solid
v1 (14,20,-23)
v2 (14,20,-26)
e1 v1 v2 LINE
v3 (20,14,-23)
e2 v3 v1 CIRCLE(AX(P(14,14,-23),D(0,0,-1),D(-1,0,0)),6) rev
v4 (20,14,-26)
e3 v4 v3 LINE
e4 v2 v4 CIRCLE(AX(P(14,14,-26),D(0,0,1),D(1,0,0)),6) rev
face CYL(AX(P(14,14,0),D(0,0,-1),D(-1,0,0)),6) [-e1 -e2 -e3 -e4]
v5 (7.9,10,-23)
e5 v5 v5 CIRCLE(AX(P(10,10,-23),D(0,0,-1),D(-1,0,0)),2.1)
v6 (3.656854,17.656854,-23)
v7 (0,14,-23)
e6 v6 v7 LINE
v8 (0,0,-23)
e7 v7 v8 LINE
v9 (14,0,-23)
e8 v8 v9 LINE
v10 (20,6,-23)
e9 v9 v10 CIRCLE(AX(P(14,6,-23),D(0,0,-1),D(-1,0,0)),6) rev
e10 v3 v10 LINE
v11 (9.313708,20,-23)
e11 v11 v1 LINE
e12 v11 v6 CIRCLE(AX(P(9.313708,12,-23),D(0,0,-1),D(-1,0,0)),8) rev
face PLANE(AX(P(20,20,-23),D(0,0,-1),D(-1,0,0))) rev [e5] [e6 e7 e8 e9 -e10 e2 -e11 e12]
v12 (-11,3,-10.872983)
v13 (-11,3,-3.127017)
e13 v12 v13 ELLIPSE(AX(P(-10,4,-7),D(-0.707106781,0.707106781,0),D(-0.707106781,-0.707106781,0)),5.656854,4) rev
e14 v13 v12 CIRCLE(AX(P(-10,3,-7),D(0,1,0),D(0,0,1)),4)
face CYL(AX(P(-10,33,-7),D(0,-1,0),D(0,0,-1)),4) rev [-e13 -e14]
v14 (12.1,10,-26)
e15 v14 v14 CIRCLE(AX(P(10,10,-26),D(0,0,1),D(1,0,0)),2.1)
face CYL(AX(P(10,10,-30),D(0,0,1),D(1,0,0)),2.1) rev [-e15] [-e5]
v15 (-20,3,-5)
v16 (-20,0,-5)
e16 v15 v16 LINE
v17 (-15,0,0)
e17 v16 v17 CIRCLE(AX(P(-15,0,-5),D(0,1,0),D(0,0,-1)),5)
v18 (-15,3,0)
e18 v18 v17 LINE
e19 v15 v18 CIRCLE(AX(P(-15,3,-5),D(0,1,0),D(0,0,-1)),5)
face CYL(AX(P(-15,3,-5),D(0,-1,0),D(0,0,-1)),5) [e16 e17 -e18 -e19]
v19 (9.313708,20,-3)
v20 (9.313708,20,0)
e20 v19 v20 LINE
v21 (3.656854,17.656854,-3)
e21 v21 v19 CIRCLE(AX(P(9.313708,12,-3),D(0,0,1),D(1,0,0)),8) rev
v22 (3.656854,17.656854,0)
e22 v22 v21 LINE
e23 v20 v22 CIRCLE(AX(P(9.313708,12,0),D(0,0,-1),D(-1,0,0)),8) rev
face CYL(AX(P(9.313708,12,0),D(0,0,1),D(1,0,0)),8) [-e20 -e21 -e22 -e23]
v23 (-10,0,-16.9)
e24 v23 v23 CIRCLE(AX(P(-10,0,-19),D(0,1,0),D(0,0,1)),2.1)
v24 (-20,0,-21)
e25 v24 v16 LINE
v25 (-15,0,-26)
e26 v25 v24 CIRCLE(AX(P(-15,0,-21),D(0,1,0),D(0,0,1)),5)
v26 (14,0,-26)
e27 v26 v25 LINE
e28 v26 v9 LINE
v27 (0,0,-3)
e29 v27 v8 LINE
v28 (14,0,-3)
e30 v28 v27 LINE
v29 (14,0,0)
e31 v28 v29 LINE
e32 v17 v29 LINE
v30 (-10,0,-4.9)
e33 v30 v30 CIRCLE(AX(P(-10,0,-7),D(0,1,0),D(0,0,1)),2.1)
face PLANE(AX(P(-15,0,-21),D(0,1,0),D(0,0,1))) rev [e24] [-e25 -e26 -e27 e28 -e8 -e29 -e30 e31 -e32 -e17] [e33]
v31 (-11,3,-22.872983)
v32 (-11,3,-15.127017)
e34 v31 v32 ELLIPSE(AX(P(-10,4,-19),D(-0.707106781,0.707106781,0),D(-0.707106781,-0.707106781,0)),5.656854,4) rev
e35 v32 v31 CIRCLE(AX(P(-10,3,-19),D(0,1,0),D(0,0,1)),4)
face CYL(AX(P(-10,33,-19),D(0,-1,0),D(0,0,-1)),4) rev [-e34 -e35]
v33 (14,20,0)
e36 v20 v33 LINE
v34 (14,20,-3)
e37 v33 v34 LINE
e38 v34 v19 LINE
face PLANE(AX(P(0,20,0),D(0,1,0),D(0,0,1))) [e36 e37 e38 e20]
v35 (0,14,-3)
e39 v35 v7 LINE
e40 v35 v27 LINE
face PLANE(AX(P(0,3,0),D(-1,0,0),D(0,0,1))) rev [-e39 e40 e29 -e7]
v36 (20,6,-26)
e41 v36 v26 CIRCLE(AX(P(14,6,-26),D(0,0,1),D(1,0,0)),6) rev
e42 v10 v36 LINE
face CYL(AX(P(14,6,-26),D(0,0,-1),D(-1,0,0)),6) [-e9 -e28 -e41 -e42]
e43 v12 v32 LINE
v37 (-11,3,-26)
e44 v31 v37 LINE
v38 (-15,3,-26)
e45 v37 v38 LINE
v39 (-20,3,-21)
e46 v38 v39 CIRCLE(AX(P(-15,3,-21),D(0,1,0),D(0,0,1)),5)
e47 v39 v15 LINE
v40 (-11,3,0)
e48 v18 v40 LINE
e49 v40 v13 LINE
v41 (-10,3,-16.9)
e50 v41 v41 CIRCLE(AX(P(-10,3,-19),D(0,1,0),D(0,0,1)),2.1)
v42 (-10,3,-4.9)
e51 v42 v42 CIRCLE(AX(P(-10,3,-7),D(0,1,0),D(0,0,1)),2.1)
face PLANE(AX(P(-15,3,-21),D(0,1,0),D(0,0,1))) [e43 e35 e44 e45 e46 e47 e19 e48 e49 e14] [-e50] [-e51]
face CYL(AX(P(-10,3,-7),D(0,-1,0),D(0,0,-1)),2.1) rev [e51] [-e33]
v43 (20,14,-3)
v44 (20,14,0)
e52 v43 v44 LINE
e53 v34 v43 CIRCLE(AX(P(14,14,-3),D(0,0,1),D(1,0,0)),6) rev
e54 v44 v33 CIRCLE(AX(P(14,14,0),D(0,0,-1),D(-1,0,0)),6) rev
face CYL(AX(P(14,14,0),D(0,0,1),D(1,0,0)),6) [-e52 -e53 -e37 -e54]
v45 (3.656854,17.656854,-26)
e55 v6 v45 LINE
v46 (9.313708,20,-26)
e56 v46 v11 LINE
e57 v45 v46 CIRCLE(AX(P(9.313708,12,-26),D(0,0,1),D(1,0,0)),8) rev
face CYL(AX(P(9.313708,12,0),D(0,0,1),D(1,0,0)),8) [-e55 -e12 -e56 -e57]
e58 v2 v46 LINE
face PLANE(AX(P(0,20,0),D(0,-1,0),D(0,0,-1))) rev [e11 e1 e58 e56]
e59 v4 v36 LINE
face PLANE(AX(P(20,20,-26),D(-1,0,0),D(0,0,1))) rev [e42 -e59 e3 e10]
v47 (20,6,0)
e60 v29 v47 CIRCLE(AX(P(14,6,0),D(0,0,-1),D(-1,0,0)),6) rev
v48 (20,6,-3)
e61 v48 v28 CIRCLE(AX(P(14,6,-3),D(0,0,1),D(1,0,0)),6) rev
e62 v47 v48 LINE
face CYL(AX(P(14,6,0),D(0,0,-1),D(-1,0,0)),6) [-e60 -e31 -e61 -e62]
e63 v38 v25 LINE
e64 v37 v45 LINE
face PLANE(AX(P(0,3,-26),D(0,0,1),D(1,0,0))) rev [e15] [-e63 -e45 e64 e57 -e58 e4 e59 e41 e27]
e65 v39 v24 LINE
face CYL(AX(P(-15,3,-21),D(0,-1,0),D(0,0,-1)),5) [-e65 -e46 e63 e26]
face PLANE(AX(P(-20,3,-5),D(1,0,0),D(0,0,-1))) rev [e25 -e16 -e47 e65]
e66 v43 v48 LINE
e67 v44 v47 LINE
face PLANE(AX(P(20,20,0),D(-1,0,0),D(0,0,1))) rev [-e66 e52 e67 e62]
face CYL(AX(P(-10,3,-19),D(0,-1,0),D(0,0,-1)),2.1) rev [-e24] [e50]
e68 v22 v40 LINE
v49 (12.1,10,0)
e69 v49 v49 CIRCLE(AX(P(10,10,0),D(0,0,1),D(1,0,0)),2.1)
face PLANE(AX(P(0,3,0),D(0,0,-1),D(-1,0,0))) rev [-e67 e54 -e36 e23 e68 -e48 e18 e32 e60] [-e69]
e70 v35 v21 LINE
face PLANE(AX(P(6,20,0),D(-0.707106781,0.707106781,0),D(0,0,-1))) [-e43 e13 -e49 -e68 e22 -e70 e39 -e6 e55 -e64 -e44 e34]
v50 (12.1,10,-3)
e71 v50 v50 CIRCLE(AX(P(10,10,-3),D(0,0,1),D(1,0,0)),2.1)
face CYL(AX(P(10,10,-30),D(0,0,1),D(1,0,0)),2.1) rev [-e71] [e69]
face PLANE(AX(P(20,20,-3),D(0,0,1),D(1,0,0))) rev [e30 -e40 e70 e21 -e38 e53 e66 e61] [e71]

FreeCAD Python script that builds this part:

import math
import FreeCAD as App
import Part
import Sketcher
Q = App.Units.Quantity


def edges_at(feature, points):
    """Names of the edges that pass closest to the given points."""
    edges = feature.Shape.Edges
    near = lambda p: min(range(len(edges)), key=lambda i: edges[i].distToShape(Part.Vertex(*p))[0])
    return sorted({f"Edge{near(p) + 1}" for p in points})

doc = App.newDocument("Part")
body = doc.addObject("PartDesign::Body", "Body")

sketch1 = body.newObject("Sketcher::SketchObject", "Sketch")
sketch1.AttachmentSupport = (doc.getObject("XZ_Plane"), [""])
sketch1.MapMode = "FlatFace"
sketch1.addGeometry(Part.LineSegment(App.Vector(-15, 0, 0), App.Vector(0, 0, 0)), False)
sketch1.addGeometry(Part.LineSegment(App.Vector(0, 0, 0), App.Vector(0, -26, 0)), False)
sketch1.addGeometry(Part.LineSegment(App.Vector(0, -26, 0), App.Vector(-15, -26, 0)), False)
sketch1.addGeometry(Part.ArcOfCircle(Part.Circle(App.Vector(-15, -21, 0), App.Vector(0, 0, 1), 5), math.radians(180), math.radians(270)), False)
sketch1.addGeometry(Part.LineSegment(App.Vector(-20, -21, 0), App.Vector(-20, -5, 0)), False)
sketch1.addGeometry(Part.ArcOfCircle(Part.Circle(App.Vector(-15, -5, 0), App.Vector(0, 0, 1), 5), math.radians(90), math.radians(180)), False)
sketch1.addGeometry(Part.Circle(App.Vector(-10, -7, 0), App.Vector(0, 0, 1), 2.1), False)
sketch1.addGeometry(Part.Circle(App.Vector(-10, -19, 0), App.Vector(0, 0, 1), 2.1), False)
sketch1.addConstraint(Sketcher.Constraint("Coincident", 0, 2, 1, 1))
sketch1.addConstraint(Sketcher.Constraint("Coincident", 1, 2, 2, 1))
sketch1.addConstraint(Sketcher.Constraint("Tangent", 2, 2, 3, 2))
sketch1.addConstraint(Sketcher.Constraint("Tangent", 3, 1, 4, 1))
sketch1.addConstraint(Sketcher.Constraint("Tangent", 4, 2, 5, 2))
sketch1.addConstraint(Sketcher.Constraint("Tangent", 5, 1, 0, 1))
sketch1.addConstraint(Sketcher.Constraint("Horizontal", 0))
sketch1.addConstraint(Sketcher.Constraint("Vertical", 1))
sketch1.addConstraint(Sketcher.Constraint("Horizontal", 2))
sketch1.addConstraint(Sketcher.Constraint("Vertical", 4))
sketch1.addConstraint(Sketcher.Constraint("Coincident", 0, 2, -1, 1))
sketch1.addConstraint(Sketcher.Constraint("Equal", 3, 5))
sketch1.addConstraint(Sketcher.Constraint("Equal", 6, 7))
sketch1.addConstraint(Sketcher.Constraint("Vertical", 6, 3, 7, 3))
sketch1.addConstraint(Sketcher.Constraint("Radius", 3, Q("5 mm")))
sketch1.addConstraint(Sketcher.Constraint("Diameter", 6, Q("4.2 mm")))
sketch1.addConstraint(Sketcher.Constraint("DistanceX", 0, 1, 0, 2, Q("15 mm")))
sketch1.addConstraint(Sketcher.Constraint("DistanceY", 1, 2, 1, 1, Q("26 mm")))
sketch1.addConstraint(Sketcher.Constraint("DistanceX", 6, 3, -1, 1, Q("10 mm")))
sketch1.addConstraint(Sketcher.Constraint("DistanceY", 6, 3, -1, 1, Q("7 mm")))
sketch1.addConstraint(Sketcher.Constraint("DistanceY", 7, 3, -1, 1, Q("19 mm")))
pad1 = body.newObject("PartDesign::Pad", "Pad")
pad1.Profile = sketch1
pad1.Length = 3
pad1.Reversed = True

sketch2 = body.newObject("Sketcher::SketchObject", "Sketch001")
sketch2.AttachmentSupport = (doc.getObject("XZ_Plane"), [""])
sketch2.MapMode = "FlatFace"
sketch2.addGeometry(Part.LineSegment(App.Vector(0, -26, 0), App.Vector(0, -23, 0)), False)
sketch2.addGeometry(Part.LineSegment(App.Vector(0, -23, 0), App.Vector(20, -23, 0)), False)
sketch2.addGeometry(Part.LineSegment(App.Vector(20, -23, 0), App.Vector(20, -26, 0)), False)
sketch2.addGeometry(Part.LineSegment(App.Vector(20, -26, 0), App.Vector(0, -26, 0)), False)
sketch2.addGeometry(Part.LineSegment(App.Vector(0, -3, 0), App.Vector(0, 0, 0)), False)
sketch2.addGeometry(Part.LineSegment(App.Vector(0, 0, 0), App.Vector(20, 0, 0)), False)
sketch2.addGeometry(Part.LineSegment(App.Vector(20, 0, 0), App.Vector(20, -3, 0)), False)
sketch2.addGeometry(Part.LineSegment(App.Vector(20, -3, 0), App.Vector(0, -3, 0)), False)
sketch2.addConstraint(Sketcher.Constraint("Coincident", 0, 2, 1, 1))
sketch2.addConstraint(Sketcher.Constraint("Coincident", 1, 2, 2, 1))
sketch2.addConstraint(Sketcher.Constraint("Coincident", 2, 2, 3, 1))
sketch2.addConstraint(Sketcher.Constraint("Coincident", 3, 2, 0, 1))
sketch2.addConstraint(Sketcher.Constraint("Coincident", 4, 2, 5, 1))
sketch2.addConstraint(Sketcher.Constraint("Coincident", 5, 2, 6, 1))
sketch2.addConstraint(Sketcher.Constraint("Coincident", 6, 2, 7, 1))
sketch2.addConstraint(Sketcher.Constraint("Coincident", 7, 2, 4, 1))
sketch2.addConstraint(Sketcher.Constraint("Vertical", 0))
sketch2.addConstraint(Sketcher.Constraint("Horizontal", 1))
sketch2.addConstraint(Sketcher.Constraint("Vertical", 2))
sketch2.addConstraint(Sketcher.Constraint("Horizontal", 3))
sketch2.addConstraint(Sketcher.Constraint("Vertical", 4))
sketch2.addConstraint(Sketcher.Constraint("Horizontal", 5))
sketch2.addConstraint(Sketcher.Constraint("Vertical", 6))
sketch2.addConstraint(Sketcher.Constraint("Horizontal", 7))
sketch2.addConstraint(Sketcher.Constraint("Coincident", 4, 2, -1, 1))
sketch2.addConstraint(Sketcher.Constraint("PointOnObject", 0, 2, -2))
sketch2.addConstraint(Sketcher.Constraint("Vertical", 2, 2, 5, 2))
sketch2.addConstraint(Sketcher.Constraint("Equal", 2, 4))
sketch2.addConstraint(Sketcher.Constraint("DistanceX", 1, 1, 1, 2, Q("20 mm")))
sketch2.addConstraint(Sketcher.Constraint("DistanceY", 0, 1, 0, 2, Q("3 mm")))
sketch2.addConstraint(Sketcher.Constraint("DistanceY", 0, 2, -1, 1, Q("23 mm")))
pad2 = body.newObject("PartDesign::Pad", "Pad001")
pad2.Profile = sketch2
pad2.Length = 20
pad2.Reversed = True
doc.recompute()

fillet = body.newObject("PartDesign::Fillet", "Fillet")
fillet.Base = (pad2, edges_at(pad2, [
    (20, 0, -24.5),
    (20, 20, -24.5),
    (20, 0, -1.5),
    (20, 20, -1.5),
]))
fillet.Radius = 6
doc.recompute()

chamfer = body.newObject("PartDesign::Chamfer", "Chamfer")
chamfer.Base = (fillet, edges_at(fillet, [(0, 20, -24.5), (0, 20, -1.5)]))
chamfer.Size = 6
doc.recompute()

fillet2 = body.newObject("PartDesign::Fillet", "Fillet001")
fillet2.Base = (chamfer, edges_at(chamfer, [(6, 20, -1.5), (6, 20, -24.5)]))
fillet2.Radius = 8

sketch3 = body.newObject("Sketcher::SketchObject", "Sketch002")
sketch3.AttachmentSupport = (doc.getObject("XY_Plane"), [""])
sketch3.MapMode = "FlatFace"
sketch3.AttachmentOffset = App.Placement(App.Vector(0, 0, -26), App.Rotation())
sketch3.addGeometry(Part.LineSegment(App.Vector(-11, 3, 0), App.Vector(0, 14, 0)), False)
sketch3.addGeometry(Part.LineSegment(App.Vector(0, 14, 0), App.Vector(0, 3, 0)), False)
sketch3.addGeometry(Part.LineSegment(App.Vector(0, 3, 0), App.Vector(-11, 3, 0)), False)
sketch3.addConstraint(Sketcher.Constraint("Coincident", 0, 2, 1, 1))
sketch3.addConstraint(Sketcher.Constraint("Coincident", 1, 2, 2, 1))
sketch3.addConstraint(Sketcher.Constraint("Coincident", 2, 2, 0, 1))
sketch3.addConstraint(Sketcher.Constraint("Vertical", 1))
sketch3.addConstraint(Sketcher.Constraint("Horizontal", 2))
sketch3.addConstraint(Sketcher.Constraint("PointOnObject", 0, 2, -2))
sketch3.addConstraint(Sketcher.Constraint("Equal", 2, 1))
sketch3.addConstraint(Sketcher.Constraint("DistanceX", 2, 2, 2, 1, Q("11 mm")))
sketch3.addConstraint(Sketcher.Constraint("DistanceY", -1, 1, 0, 2, Q("14 mm")))
pad3 = body.newObject("PartDesign::Pad", "Pad002")
pad3.Profile = sketch3
pad3.Length = 26

sketch4 = body.newObject("Sketcher::SketchObject", "Sketch003")
sketch4.AttachmentSupport = (doc.getObject("XY_Plane"), [""])
sketch4.MapMode = "FlatFace"
sketch4.addGeometry(Part.Circle(App.Vector(10, 10, 0), App.Vector(0, 0, 1), 2.1), False)
sketch4.addConstraint(Sketcher.Constraint("Diameter", 0, Q("4.2 mm")))
sketch4.addConstraint(Sketcher.Constraint("DistanceX", -1, 1, 0, 3, Q("10 mm")))
sketch4.addConstraint(Sketcher.Constraint("DistanceY", -1, 1, 0, 3, Q("10 mm")))
pocket1 = body.newObject("PartDesign::Pocket", "Pocket")
pocket1.Profile = sketch4
pocket1.Length = 30

sketch5 = body.newObject("Sketcher::SketchObject", "Sketch004")
sketch5.AttachmentSupport = (doc.getObject("XZ_Plane"), [""])
sketch5.MapMode = "FlatFace"
sketch5.AttachmentOffset = App.Placement(App.Vector(0, 0, -3), App.Rotation())
sketch5.addGeometry(Part.Circle(App.Vector(-10, -19, 0), App.Vector(0, 0, 1), 4), False)
sketch5.addGeometry(Part.Circle(App.Vector(-10, -7, 0), App.Vector(0, 0, 1), 4), False)
sketch5.addConstraint(Sketcher.Constraint("Equal", 0, 1))
sketch5.addConstraint(Sketcher.Constraint("Vertical", 0, 3, 1, 3))
sketch5.addConstraint(Sketcher.Constraint("Diameter", 0, Q("8 mm")))
sketch5.addConstraint(Sketcher.Constraint("DistanceX", 0, 3, -1, 1, Q("10 mm")))
sketch5.addConstraint(Sketcher.Constraint("DistanceY", 0, 3, -1, 1, Q("19 mm")))
sketch5.addConstraint(Sketcher.Constraint("DistanceY", 1, 3, -1, 1, Q("7 mm")))
pocket2 = body.newObject("PartDesign::Pocket", "Pocket001")
pocket2.Profile = sketch5
pocket2.Length = 30

doc.recompute()
